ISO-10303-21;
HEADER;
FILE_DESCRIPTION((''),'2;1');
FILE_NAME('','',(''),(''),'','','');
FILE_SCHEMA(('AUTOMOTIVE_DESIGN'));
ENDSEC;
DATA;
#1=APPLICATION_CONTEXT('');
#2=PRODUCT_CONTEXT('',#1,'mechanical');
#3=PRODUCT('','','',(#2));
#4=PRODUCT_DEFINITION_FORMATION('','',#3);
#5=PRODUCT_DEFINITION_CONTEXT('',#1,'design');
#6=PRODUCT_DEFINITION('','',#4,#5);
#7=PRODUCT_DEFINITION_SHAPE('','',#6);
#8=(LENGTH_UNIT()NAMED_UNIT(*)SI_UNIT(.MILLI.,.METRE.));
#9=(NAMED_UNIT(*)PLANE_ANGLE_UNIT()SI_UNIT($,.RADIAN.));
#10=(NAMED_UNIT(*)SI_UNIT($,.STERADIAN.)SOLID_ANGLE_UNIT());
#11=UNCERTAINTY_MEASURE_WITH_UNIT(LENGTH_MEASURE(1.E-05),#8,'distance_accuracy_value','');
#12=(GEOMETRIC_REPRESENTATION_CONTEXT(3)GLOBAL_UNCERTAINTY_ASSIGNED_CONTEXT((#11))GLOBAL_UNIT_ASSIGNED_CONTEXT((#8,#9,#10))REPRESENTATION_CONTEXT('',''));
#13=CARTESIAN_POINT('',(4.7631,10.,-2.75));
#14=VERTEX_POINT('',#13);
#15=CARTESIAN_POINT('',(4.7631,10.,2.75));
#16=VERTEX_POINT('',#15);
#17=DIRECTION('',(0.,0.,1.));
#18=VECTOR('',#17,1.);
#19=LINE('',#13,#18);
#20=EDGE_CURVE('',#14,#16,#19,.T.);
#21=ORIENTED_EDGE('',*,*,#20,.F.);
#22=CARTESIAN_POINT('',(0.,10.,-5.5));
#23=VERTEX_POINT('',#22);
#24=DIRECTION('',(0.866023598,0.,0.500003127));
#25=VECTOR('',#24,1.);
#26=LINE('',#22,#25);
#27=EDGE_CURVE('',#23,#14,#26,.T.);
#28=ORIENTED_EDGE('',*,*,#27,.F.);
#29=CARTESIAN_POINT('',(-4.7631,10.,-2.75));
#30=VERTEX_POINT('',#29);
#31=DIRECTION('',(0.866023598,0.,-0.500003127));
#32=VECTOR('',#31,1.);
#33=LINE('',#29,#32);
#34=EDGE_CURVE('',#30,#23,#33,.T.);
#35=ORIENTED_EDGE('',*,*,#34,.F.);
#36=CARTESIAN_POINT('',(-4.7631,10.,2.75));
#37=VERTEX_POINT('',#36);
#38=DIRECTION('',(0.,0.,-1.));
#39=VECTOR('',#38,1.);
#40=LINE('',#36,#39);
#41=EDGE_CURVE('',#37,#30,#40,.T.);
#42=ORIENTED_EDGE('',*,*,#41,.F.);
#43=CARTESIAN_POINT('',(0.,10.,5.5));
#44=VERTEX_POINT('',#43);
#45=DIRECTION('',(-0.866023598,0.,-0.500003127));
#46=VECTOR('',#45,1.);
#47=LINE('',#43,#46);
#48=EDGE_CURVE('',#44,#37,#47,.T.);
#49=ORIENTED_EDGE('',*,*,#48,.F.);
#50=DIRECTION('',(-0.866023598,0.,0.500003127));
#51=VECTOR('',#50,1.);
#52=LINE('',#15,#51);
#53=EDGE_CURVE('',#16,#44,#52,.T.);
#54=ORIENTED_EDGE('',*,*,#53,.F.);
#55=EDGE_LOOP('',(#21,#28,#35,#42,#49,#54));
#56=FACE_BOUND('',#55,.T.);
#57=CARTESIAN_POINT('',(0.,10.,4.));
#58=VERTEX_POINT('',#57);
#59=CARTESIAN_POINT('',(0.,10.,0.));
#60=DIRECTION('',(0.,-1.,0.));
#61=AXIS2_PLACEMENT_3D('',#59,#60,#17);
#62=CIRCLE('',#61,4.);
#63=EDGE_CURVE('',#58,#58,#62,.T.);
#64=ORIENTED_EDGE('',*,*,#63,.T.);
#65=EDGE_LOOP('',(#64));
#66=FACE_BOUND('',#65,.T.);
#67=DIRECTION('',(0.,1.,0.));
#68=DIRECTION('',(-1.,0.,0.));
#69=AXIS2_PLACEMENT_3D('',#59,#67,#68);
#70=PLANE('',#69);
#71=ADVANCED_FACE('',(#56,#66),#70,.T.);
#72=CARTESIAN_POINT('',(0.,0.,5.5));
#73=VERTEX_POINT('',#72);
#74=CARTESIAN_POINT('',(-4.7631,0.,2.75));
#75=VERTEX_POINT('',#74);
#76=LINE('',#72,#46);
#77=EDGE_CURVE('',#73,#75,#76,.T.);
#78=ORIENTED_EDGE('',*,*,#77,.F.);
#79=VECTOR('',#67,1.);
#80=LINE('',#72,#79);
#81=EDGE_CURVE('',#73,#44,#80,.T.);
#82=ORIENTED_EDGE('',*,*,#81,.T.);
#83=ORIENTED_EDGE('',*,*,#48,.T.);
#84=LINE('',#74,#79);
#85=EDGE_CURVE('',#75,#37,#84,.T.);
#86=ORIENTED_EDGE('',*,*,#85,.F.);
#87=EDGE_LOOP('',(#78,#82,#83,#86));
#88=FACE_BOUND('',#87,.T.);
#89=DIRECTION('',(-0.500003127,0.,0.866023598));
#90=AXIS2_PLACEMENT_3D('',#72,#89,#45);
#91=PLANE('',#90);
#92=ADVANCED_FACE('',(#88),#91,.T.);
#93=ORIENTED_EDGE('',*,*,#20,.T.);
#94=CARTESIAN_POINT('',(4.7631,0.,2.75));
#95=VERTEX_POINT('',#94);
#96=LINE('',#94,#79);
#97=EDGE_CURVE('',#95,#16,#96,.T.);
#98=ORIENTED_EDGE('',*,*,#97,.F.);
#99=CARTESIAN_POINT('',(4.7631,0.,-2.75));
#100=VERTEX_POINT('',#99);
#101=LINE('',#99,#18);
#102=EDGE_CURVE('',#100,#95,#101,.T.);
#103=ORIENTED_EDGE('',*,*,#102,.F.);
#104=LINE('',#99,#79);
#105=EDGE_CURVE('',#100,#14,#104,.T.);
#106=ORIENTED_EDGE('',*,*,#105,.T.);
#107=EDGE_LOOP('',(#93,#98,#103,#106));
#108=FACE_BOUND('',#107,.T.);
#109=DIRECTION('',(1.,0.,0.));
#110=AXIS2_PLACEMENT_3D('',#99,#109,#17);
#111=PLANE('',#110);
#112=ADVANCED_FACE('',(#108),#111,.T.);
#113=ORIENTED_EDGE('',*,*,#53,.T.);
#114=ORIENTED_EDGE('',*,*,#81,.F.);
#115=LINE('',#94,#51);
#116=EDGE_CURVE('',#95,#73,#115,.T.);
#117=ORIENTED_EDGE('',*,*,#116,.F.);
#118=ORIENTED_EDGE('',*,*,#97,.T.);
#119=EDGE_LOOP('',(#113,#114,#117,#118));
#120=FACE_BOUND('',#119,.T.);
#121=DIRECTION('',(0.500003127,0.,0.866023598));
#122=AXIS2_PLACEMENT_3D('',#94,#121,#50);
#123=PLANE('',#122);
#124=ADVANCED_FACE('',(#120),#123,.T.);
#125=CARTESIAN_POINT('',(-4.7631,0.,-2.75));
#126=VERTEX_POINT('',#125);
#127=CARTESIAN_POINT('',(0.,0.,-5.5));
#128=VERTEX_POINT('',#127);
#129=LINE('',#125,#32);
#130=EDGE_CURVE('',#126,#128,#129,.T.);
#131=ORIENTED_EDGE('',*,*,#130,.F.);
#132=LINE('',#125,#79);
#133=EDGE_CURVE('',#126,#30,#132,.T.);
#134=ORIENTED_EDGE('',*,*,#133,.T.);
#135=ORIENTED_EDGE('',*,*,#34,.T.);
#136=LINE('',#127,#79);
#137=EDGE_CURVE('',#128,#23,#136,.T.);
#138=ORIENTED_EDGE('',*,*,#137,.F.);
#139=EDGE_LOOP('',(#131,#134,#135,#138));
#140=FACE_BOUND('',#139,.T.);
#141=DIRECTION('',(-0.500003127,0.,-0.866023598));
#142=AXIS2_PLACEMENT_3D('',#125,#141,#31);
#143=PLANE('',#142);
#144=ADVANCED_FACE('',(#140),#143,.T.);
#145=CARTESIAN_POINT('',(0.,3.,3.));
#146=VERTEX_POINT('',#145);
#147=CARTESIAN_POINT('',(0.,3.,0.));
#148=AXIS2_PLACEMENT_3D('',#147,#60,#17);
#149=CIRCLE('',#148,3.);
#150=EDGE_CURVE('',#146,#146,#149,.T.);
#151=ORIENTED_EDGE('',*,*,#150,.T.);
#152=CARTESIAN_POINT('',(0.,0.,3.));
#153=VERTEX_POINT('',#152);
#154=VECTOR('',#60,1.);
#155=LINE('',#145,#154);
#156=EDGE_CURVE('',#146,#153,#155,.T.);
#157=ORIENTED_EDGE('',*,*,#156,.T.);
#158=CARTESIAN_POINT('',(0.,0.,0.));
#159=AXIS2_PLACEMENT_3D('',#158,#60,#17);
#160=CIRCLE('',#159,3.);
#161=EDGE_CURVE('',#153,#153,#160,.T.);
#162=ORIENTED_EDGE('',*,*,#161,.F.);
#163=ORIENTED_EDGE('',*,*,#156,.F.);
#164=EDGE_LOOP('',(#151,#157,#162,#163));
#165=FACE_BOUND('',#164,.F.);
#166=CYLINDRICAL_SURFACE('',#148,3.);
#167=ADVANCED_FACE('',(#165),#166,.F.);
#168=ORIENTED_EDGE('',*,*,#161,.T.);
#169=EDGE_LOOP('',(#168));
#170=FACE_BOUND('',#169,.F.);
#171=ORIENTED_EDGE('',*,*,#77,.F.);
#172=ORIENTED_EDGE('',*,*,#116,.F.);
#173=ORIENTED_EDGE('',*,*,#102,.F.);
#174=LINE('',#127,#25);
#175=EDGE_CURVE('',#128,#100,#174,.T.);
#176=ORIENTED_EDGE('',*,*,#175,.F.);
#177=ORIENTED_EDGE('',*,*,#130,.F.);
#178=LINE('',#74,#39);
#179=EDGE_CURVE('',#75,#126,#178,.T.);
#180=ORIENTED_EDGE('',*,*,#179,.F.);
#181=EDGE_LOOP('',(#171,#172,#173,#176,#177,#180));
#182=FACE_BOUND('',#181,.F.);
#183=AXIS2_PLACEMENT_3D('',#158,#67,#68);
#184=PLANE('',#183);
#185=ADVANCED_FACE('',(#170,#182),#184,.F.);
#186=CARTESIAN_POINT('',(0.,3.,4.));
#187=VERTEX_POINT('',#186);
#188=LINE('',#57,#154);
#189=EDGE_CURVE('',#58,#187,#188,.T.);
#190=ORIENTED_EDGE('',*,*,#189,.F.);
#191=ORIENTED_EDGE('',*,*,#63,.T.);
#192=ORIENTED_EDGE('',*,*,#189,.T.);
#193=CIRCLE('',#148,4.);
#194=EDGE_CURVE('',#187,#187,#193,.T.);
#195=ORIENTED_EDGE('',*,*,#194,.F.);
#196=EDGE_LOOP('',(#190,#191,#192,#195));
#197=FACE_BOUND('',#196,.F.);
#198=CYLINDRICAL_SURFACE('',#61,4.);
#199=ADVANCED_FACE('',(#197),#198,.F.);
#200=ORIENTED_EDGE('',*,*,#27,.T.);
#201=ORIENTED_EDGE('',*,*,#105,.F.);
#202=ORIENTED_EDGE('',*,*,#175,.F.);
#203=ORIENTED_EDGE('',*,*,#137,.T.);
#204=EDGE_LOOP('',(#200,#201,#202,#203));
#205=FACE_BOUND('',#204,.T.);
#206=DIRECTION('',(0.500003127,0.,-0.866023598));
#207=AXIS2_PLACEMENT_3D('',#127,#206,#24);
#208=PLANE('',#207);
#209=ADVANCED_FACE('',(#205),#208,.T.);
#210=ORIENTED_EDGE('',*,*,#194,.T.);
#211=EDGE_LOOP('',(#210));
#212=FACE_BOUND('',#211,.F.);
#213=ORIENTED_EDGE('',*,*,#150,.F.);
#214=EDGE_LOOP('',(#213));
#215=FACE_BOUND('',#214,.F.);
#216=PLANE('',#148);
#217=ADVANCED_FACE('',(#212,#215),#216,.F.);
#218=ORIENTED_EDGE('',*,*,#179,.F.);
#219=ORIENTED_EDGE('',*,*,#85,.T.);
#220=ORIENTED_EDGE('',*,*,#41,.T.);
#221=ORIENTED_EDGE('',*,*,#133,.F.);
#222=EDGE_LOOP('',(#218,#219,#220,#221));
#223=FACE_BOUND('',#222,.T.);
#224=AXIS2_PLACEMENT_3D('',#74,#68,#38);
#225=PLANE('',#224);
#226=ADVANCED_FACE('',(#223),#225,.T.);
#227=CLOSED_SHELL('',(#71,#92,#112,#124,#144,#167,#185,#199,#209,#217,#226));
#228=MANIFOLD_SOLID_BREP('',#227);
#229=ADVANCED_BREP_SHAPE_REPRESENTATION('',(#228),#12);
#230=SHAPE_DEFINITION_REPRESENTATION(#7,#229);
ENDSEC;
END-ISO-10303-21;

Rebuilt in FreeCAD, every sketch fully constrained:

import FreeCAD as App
import Part
import Sketcher
Q = App.Units.Quantity


def add_polygon(sketch, points):
    """Adds a closed chain of lines whose ends are joined by coincident constraints."""
    first, n = sketch.GeometryCount, len(points)
    for a, b in zip(points, points[1:] + points[:1]):
        sketch.addGeometry(Part.LineSegment(App.Vector(*a, 0), App.Vector(*b, 0)), False)
    for i in range(n):
        sketch.addConstraint(Sketcher.Constraint("Coincident", first + i, 2, first + (i + 1) % n, 1))

doc = App.newDocument("Part")
params = doc.addObject("Spreadsheet::Sheet", "Params")
for row, (alias, value) in enumerate([
    ("sketch1_height", "5.5 mm"),
    ("sketch1_length", "5.5 mm"),
    ("pad1_length", "10 mm"),
    ("sketch2_diameter", "6 mm"),
    ("hole_diameter", "6 mm"),
    ("hole_depth", "10 mm"),
    ("hole_cbore_diameter", "8 mm"),
    ("hole_cbore_depth", "7 mm"),
], start=1):
    params.set(f"A{row}", alias)
    params.set(f"B{row}", "=" + value)
    params.setAlias(f"B{row}", alias)

body = doc.addObject("PartDesign::Body", "Body")

sketch1 = body.newObject("Sketcher::SketchObject", "Sketch")
sketch1.AttachmentSupport = (doc.getObject("XZ_Plane"), [""])
sketch1.MapMode = "FlatFace"
add_polygon(sketch1, [(5, -3), (0, -6), (-5, -3), (-5, 3), (0, 6), (5, 3)])
sketch1.addConstraint([
    Sketcher.Constraint("Vertical", 2),
    Sketcher.Constraint("Vertical", 5),
    Sketcher.Constraint("Symmetric", 0, 2, 3, 2, -1, 1),
    Sketcher.Constraint("Symmetric", 1, 2, 4, 2, -1, 1),
    Sketcher.Constraint("PointOnObject", 0, 2, -2),
    Sketcher.Constraint("Parallel", 0, 3),
    Sketcher.Constraint("Horizontal", 2, 2, 4, 2),
    Sketcher.Constraint("DistanceY", 2, 1, 2, 2, Q("5.5 mm")),
    Sketcher.Constraint("Distance", 0, Q("5.5 mm")),
    Sketcher.Constraint("DistanceY", 0, 2, -1, 1, Q("5.5 mm")),
])
sketch1.setExpression("Constraints[13]", "Params.sketch1_height")
sketch1.setExpression("Constraints[14]", "Params.sketch1_length")
pad1 = body.newObject("PartDesign::Pad", "Pad")
pad1.Profile = sketch1
pad1.setExpression("Length", "Params.pad1_length")
pad1.Reversed = True

sketch2 = body.newObject("Sketcher::SketchObject", "Sketch001")
sketch2.AttachmentSupport = (doc.getObject("XZ_Plane"), [""])
sketch2.MapMode = "FlatFace"
sketch2.AttachmentOffset = App.Placement(App.Vector(0, 0, -10), App.Rotation())
sketch2.addGeometry(Part.Circle(App.Vector(0, 0, 0), App.Vector(0, 0, 1), 3), False)
sketch2.addConstraint([
    Sketcher.Constraint("Coincident", 0, 3, -1, 1),
    Sketcher.Constraint("Diameter", 0, Q("6 mm")),
])
sketch2.setExpression("Constraints[1]", "Params.sketch2_diameter")
doc.recompute()
hole = body.newObject("PartDesign::Hole", "Hole")
hole.Profile = sketch2
hole.ThreadType = "None"
hole.setExpression("Diameter", "Params.hole_diameter")
hole.DepthType = "Dimension"
hole.setExpression("Depth", "Params.hole_depth")
hole.DrillPoint = "Angled"
hole.DrillPointAngle = 118
hole.HoleCutType = "Counterbore"
hole.setExpression("HoleCutDiameter", "Params.hole_cbore_diameter")
hole.setExpression("HoleCutDepth", "Params.hole_cbore_depth")
hole.Reversed = True

doc.recompute()
